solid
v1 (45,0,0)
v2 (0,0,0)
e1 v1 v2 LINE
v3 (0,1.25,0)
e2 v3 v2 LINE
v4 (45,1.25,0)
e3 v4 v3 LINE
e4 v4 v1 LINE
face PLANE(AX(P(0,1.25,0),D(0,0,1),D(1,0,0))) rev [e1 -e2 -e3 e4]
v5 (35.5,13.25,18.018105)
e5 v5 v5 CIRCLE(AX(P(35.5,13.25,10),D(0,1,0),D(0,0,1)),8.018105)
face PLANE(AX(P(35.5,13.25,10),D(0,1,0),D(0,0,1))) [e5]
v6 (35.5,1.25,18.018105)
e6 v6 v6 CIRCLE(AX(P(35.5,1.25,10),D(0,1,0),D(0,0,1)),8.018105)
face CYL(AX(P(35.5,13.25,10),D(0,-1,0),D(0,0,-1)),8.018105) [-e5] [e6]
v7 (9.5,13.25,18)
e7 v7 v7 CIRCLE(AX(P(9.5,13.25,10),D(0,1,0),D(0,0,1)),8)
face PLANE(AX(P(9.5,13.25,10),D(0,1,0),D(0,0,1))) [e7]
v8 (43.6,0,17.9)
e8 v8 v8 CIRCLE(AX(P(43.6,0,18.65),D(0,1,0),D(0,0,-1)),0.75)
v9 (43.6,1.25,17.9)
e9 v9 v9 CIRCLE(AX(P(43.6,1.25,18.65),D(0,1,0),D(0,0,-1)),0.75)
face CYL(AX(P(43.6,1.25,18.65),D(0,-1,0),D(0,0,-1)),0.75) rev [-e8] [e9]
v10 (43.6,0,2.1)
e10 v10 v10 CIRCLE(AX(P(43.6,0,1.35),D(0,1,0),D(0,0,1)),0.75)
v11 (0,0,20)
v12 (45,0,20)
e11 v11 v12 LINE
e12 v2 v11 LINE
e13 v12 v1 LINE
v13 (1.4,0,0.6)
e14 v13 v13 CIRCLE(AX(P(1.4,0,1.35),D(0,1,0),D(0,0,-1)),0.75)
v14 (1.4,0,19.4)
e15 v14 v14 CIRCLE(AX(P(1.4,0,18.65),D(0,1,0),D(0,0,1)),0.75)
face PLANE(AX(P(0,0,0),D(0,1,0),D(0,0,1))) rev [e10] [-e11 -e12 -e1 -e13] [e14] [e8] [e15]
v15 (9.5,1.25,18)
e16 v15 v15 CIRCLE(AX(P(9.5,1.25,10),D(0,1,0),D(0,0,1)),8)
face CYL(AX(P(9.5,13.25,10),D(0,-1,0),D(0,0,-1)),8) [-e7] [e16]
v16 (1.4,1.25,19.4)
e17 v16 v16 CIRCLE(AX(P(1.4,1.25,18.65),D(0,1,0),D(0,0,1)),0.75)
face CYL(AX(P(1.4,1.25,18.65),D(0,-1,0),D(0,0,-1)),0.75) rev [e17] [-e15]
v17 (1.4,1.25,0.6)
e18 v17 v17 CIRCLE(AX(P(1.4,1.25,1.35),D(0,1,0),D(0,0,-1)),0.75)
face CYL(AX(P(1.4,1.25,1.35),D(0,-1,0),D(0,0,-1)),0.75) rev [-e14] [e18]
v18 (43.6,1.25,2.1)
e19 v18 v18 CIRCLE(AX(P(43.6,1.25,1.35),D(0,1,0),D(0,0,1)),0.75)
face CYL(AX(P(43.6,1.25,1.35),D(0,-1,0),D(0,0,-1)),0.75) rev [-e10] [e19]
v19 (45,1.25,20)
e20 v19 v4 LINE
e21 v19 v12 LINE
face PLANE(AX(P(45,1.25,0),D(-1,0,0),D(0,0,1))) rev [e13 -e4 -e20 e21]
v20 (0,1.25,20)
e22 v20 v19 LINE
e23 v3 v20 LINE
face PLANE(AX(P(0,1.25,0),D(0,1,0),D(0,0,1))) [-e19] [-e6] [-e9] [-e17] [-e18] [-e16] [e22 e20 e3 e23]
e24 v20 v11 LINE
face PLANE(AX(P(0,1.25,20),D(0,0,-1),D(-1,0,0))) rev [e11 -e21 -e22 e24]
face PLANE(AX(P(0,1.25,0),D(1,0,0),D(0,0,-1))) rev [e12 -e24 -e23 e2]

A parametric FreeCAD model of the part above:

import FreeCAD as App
import Part
import Sketcher
from FreeCAD import Vector
Q = App.Units.Quantity


def add_polygon(sketch, points):
    """Adds a closed chain of lines whose ends are joined by coincident constraints."""
    first, n = sketch.GeometryCount, len(points)
    for a, b in zip(points, points[1:] + points[:1]):
        sketch.addGeometry(Part.LineSegment(App.Vector(*a, 0), App.Vector(*b, 0)), False)
    for i in range(n):
        sketch.addConstraint(Sketcher.Constraint("Coincident", first + i, 2, first + (i + 1) % n, 1))

doc = App.newDocument("Part")
body = doc.addObject("PartDesign::Body", "Body")

sketch1 = body.newObject("Sketcher::SketchObject", "Sketch")
sketch1.AttachmentSupport = (doc.getObject("XZ_Plane"), [""])
sketch1.MapMode = "FlatFace"
add_polygon(sketch1, [(0, 0), (0, 20), (45, 20), (45, 0)])
sketch1.addGeometry(Part.Circle(Vector(1.4, 18.65, 0), Vector(0, 0, 1), 0.75), False)
sketch1.addGeometry(Part.Circle(Vector(43.6, 18.65, 0), Vector(0, 0, 1), 0.75), False)
sketch1.addGeometry(Part.Circle(Vector(1.4, 1.35, 0), Vector(0, 0, 1), 0.75), False)
sketch1.addGeometry(Part.Circle(Vector(43.6, 1.35, 0), Vector(0, 0, 1), 0.75), False)
sketch1.addConstraint([
    Sketcher.Constraint("Vertical", 0),
    Sketcher.Constraint("Horizontal", 1),
    Sketcher.Constraint("Vertical", 2),
    Sketcher.Constraint("Horizontal", 3),
    Sketcher.Constraint("Coincident", 3, 2, -1, 1),
    Sketcher.Constraint("Equal", 4, 5),
    Sketcher.Constraint("Equal", 5, 6),
    Sketcher.Constraint("Equal", 6, 7),
    Sketcher.Constraint("Horizontal", 4, 3, 5, 3),
    Sketcher.Constraint("Horizontal", 6, 3, 7, 3),
    Sketcher.Constraint("Vertical", 4, 3, 6, 3),
    Sketcher.Constraint("Vertical", 5, 3, 7, 3),
    Sketcher.Constraint("Diameter", 4, Q("1.5 mm")),
    Sketcher.Constraint("DistanceX", 1, 1, 1, 2, Q("45 mm")),
    Sketcher.Constraint("DistanceY", 0, 1, 0, 2, Q("20 mm")),
    Sketcher.Constraint("DistanceX", -1, 1, 4, 3, Q("1.4 mm")),
    Sketcher.Constraint("DistanceX", -1, 1, 5, 3, Q("43.6 mm")),
    Sketcher.Constraint("DistanceY", 6, 3, 4, 3, Q("17.3 mm")),
    Sketcher.Constraint("DistanceY", -1, 1, 4, 3, Q("18.65 mm")),
])
pad1 = body.newObject("PartDesign::Pad", "Pad")
pad1.Profile = sketch1
pad1.Length = 1.25
pad1.Reversed = True

sketch2 = body.newObject("Sketcher::SketchObject", "Sketch001")
sketch2.AttachmentSupport = (doc.getObject("XZ_Plane"), [""])
sketch2.MapMode = "FlatFace"
sketch2.AttachmentOffset = App.Placement(Vector(0, 0, -1.25), App.Rotation())
sketch2.addGeometry(Part.Circle(Vector(9.5, 10, 0), Vector(0, 0, 1), 8), False)
sketch2.addConstraint([
    Sketcher.Constraint("Diameter", 0, Q("16 mm")),
    Sketcher.Constraint("DistanceY", -1, 1, 0, 3, Q("10 mm")),
    Sketcher.Constraint("DistanceX", -1, 1, 0, 3, Q("9.5 mm")),
])
pad2 = body.newObject("PartDesign::Pad", "Pad001")
pad2.Profile = sketch2
pad2.Length = 12
pad2.Reversed = True

sketch3 = body.newObject("Sketcher::SketchObject", "Sketch002")
sketch3.AttachmentSupport = (doc.getObject("XZ_Plane"), [""])
sketch3.MapMode = "FlatFace"
sketch3.AttachmentOffset = App.Placement(Vector(0, 0, -1.25), App.Rotation())
sketch3.addGeometry(Part.Circle(Vector(35.5, 10, 0), Vector(0, 0, 1), 8.018105), False)
sketch3.addConstraint([
    Sketcher.Constraint("DistanceY", -1, 1, 0, 3, Q("10 mm")),
    Sketcher.Constraint("DistanceX", -1, 1, 0, 3, Q("35.5 mm")),
    Sketcher.Constraint("Diameter", 0, Q("16.036209 mm")),
])
pad3 = body.newObject("PartDesign::Pad", "Pad002")
pad3.Profile = sketch3
pad3.Length = 12
pad3.Reversed = True

doc.recompute()
